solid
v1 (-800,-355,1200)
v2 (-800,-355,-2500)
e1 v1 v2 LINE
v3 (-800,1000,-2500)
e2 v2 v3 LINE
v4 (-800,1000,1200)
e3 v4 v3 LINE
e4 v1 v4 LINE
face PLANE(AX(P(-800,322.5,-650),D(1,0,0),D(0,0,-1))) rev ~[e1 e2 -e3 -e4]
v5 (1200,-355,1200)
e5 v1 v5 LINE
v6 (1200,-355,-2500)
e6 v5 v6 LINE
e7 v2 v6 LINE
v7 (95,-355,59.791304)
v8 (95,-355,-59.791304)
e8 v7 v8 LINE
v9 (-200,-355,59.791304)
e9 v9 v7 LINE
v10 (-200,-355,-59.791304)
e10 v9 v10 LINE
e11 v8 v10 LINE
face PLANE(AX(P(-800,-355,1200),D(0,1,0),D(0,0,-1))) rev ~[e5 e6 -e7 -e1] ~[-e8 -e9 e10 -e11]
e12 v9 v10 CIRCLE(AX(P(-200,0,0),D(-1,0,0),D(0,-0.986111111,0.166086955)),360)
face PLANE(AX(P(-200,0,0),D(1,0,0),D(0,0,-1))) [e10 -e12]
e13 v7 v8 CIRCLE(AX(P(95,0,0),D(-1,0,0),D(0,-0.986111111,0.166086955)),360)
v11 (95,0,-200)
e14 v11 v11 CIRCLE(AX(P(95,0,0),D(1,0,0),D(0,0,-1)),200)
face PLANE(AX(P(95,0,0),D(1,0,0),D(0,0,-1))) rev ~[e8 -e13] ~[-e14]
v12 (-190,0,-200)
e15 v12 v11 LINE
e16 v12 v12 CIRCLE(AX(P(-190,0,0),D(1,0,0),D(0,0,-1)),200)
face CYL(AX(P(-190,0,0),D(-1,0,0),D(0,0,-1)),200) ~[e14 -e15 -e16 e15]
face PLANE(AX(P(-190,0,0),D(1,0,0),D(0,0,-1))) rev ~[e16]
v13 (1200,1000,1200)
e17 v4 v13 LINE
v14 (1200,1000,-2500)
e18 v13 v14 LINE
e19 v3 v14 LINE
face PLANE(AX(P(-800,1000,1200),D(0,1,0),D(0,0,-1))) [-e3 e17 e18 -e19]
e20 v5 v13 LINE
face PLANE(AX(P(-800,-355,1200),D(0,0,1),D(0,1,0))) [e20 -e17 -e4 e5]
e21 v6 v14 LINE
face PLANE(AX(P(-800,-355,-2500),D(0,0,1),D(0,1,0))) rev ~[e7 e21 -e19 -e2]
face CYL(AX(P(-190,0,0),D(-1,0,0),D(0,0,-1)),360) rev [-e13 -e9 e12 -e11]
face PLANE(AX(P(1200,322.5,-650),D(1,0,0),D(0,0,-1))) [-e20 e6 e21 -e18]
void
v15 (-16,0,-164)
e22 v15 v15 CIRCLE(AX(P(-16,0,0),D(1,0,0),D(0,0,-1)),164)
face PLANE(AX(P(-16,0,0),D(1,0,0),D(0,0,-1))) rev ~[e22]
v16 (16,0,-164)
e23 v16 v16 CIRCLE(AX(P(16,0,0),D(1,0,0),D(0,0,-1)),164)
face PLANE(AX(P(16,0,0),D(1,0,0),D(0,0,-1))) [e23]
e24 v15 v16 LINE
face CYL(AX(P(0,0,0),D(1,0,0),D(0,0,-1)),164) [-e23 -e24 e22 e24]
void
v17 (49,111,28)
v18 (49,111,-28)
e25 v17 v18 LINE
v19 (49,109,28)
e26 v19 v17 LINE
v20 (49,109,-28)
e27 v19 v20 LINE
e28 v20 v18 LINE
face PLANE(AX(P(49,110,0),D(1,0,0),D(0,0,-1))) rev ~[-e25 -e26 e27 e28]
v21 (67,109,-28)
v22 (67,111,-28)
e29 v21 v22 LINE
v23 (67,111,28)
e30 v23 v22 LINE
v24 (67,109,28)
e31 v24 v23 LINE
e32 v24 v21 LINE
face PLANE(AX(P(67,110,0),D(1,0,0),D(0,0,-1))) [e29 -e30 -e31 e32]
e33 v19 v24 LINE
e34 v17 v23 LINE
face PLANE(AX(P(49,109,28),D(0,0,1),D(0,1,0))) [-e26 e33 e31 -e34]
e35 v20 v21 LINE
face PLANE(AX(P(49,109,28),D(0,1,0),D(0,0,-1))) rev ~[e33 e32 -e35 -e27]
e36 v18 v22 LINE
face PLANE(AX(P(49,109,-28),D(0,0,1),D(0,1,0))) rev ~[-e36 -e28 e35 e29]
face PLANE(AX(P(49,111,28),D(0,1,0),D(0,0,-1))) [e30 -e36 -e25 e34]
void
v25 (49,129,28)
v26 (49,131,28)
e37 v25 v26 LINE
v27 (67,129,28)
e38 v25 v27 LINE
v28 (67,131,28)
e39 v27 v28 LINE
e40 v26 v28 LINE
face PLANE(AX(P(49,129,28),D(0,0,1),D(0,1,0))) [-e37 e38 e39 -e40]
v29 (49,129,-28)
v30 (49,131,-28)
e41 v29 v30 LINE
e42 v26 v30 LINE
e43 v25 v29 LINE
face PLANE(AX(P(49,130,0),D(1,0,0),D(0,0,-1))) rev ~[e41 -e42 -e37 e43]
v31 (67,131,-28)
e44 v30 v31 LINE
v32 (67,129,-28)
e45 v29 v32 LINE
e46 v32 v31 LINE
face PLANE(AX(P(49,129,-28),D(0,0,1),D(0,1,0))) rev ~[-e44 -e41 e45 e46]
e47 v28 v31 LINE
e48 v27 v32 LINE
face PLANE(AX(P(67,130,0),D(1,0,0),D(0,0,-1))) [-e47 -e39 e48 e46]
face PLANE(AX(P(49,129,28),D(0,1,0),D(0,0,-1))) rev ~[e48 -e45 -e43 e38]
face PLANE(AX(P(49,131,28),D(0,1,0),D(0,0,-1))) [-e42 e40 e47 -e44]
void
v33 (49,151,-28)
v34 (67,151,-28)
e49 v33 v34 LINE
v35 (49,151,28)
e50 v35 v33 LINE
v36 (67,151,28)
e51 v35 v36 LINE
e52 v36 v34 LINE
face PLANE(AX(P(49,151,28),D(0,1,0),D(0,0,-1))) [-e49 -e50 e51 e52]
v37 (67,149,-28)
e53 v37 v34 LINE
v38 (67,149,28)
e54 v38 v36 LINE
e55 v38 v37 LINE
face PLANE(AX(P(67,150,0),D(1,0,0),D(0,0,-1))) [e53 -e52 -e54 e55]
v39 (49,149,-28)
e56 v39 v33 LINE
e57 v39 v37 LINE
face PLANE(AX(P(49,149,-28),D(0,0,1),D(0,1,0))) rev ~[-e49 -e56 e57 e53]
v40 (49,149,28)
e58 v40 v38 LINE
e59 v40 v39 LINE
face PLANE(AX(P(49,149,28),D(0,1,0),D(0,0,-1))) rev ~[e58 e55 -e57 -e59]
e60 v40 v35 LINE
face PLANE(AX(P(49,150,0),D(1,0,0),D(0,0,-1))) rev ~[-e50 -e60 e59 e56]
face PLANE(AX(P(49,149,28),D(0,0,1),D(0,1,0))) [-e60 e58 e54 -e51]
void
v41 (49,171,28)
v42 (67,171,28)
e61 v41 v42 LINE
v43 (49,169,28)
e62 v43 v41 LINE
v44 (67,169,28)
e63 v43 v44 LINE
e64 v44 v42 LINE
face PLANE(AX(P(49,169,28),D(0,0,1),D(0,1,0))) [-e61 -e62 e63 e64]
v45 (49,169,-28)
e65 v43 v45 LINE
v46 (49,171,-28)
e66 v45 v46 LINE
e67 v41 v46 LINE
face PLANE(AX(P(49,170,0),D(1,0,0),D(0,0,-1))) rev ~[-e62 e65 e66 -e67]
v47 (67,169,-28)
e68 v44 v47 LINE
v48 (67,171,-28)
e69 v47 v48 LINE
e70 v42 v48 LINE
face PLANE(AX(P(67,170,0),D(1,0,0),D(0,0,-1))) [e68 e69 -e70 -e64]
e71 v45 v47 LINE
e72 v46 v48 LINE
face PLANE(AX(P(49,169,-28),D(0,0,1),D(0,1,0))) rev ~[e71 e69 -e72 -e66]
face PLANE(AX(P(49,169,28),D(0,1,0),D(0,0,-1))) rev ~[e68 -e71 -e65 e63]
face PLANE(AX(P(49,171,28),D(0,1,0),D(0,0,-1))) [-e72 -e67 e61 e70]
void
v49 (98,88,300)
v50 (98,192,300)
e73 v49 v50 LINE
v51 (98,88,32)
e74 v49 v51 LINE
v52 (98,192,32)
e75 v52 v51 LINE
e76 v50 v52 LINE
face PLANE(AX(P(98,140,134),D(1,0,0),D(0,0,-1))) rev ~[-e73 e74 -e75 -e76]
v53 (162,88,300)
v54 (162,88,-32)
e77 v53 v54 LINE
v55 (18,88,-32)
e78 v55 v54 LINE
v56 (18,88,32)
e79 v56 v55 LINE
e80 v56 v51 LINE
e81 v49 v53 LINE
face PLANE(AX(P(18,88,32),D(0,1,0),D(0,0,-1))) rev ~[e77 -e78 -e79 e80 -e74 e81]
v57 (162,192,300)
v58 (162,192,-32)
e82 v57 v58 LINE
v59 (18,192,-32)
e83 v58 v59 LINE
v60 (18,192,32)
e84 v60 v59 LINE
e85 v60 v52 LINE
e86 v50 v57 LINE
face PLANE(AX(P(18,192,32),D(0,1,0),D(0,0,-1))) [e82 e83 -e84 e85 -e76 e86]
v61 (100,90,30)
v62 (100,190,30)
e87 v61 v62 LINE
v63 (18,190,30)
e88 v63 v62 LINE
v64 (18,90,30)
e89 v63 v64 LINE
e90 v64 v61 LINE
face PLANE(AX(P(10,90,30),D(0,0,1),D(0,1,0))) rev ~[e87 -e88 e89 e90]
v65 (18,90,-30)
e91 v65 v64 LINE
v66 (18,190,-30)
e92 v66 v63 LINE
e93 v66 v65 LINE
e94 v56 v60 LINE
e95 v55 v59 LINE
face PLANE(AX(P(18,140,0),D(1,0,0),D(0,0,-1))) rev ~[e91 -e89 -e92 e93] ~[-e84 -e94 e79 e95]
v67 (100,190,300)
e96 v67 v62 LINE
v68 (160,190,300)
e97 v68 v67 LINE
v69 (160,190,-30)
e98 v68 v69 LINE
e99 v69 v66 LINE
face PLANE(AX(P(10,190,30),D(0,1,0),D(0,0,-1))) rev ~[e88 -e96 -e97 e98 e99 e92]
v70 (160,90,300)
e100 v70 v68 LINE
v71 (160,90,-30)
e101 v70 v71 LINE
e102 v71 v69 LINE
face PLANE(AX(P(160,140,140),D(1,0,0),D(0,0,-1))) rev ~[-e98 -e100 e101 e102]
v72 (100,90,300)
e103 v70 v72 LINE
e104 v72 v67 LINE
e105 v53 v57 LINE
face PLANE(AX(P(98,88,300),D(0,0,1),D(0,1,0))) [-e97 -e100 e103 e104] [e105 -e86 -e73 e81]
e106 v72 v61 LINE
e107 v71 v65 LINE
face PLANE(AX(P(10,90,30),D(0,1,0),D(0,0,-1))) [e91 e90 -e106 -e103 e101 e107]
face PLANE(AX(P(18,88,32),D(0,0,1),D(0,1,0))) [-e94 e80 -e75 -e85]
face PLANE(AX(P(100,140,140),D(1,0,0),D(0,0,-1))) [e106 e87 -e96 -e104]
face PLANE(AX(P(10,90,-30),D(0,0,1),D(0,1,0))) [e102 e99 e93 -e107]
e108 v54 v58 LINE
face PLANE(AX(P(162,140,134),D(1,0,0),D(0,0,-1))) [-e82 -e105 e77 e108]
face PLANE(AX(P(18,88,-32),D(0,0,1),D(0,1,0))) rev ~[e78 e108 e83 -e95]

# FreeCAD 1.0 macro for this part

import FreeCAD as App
import Part
import Sketcher
from FreeCAD import Vector


def add_polygon(sketch, points):
    """Adds a closed chain of lines whose ends are joined by coincident constraints."""
    first, n = sketch.GeometryCount, len(points)
    for a, b in zip(points, points[1:] + points[:1]):
        sketch.addGeometry(Part.LineSegment(App.Vector(*a, 0), App.Vector(*b, 0)), False)
    for i in range(n):
        sketch.addConstraint(Sketcher.Constraint("Coincident", first + i, 2, first + (i + 1) % n, 1))

doc = App.newDocument("Part")
body = doc.addObject("PartDesign::Body", "Body")

# Sketch on YZ plane
sketch1 = doc.addObject("Sketcher::SketchObject", "Sketch")
body.addObject(sketch1)
sketch1.AttachmentSupport = (doc.YZ_Plane, [""])
sketch1.MapMode = "FlatFace"
sketch1.AttachmentOffset = App.Placement(Vector(0, 0, -800), App.Rotation())
add_polygon(sketch1, [(1000, 1200), (-355, 1200), (-355, -2500), (1000, -2500)])  # lines 0-3
sketch1.addConstraint([
    Sketcher.Constraint("Horizontal", 0),
    Sketcher.Constraint("Vertical", 1),
    Sketcher.Constraint("Horizontal", 2),
    Sketcher.Constraint("Vertical", 3),
    Sketcher.Constraint("DistanceX", 0, 2, 0, 1, 1355.0),
    Sketcher.Constraint("DistanceY", 1, 2, 1, 1, 3700.0),
    Sketcher.Constraint("DistanceX", 0, 2, -1, 1, 355.0),
    Sketcher.Constraint("DistanceY", -1, 1, 0, 2, 1200.0),
])
pad1 = doc.addObject("PartDesign::Pad", "Pad")
body.addObject(pad1)
pad1.Profile = sketch1
pad1.Length = 2000
body2 = doc.addObject("PartDesign::Body", "Body001")

# Sketch on YZ plane
sketch2 = doc.addObject("Sketcher::SketchObject", "Sketch001")
body2.addObject(sketch2)
sketch2.AttachmentSupport = (doc.getObject("YZ_Plane001"), [""])
sketch2.MapMode = "FlatFace"
sketch2.AttachmentOffset = App.Placement(Vector(0, 0, -190), App.Rotation())
sketch2.addGeometry([
    Part.Circle(Vector(0, 0, 0), Vector(0, 0, 1), 360),
    Part.Circle(Vector(0, 0, 0), Vector(0, 0, 1), 200),
], False)
sketch2.addConstraint([
    Sketcher.Constraint("Coincident", 0, 3, -1, 1),
    Sketcher.Constraint("Coincident", 1, 3, -1, 1),
    Sketcher.Constraint("Diameter", 0, 720.0),
    Sketcher.Constraint("Diameter", 1, 400.0),
])
pad2 = doc.addObject("PartDesign::Pad", "Pad001")
body2.addObject(pad2)
pad2.Profile = sketch2
pad2.Length = 285
body3 = doc.addObject("PartDesign::Body", "Body002")

# Sketch on YZ plane
sketch3 = doc.addObject("Sketcher::SketchObject", "Sketch002")
body3.addObject(sketch3)
sketch3.AttachmentSupport = (doc.getObject("YZ_Plane002"), [""])
sketch3.MapMode = "FlatFace"
sketch3.AttachmentOffset = App.Placement(Vector(0, 0, -200), App.Rotation())
sketch3.addGeometry(Part.Circle(Vector(0, 0, 0), Vector(0, 0, 1), 360), False)
sketch3.addConstraint([
    Sketcher.Constraint("Coincident", 0, 3, -1, 1),
    Sketcher.Constraint("Diameter", 0, 720.0),
])
pad3 = doc.addObject("PartDesign::Pad", "Pad002")
body3.addObject(pad3)
pad3.Profile = sketch3
pad3.Length = 10
body4 = doc.addObject("PartDesign::Body", "Body003")

# Sketch on YZ plane
sketch4 = doc.addObject("Sketcher::SketchObject", "Sketch003")
body4.addObject(sketch4)
sketch4.AttachmentSupport = (doc.getObject("YZ_Plane003"), [""])
sketch4.MapMode = "FlatFace"
sketch4.addGeometry(Part.Circle(Vector(0, 0, 0), Vector(0, 0, 1), 164), False)
sketch4.addConstraint([
    Sketcher.Constraint("Coincident", 0, 3, -1, 1),
    Sketcher.Constraint("Diameter", 0, 328.0),
])
pad4 = doc.addObject("PartDesign::Pad", "Pad003")
body4.addObject(pad4)
pad4.Profile = sketch4
pad4.Length = 32
pad4.Midplane = True
body5 = doc.addObject("PartDesign::Body", "Body004")

# Sketch on YZ plane
sketch5 = doc.addObject("Sketcher::SketchObject", "Sketch004")
body5.addObject(sketch5)
sketch5.AttachmentSupport = (doc.getObject("YZ_Plane004"), [""])
sketch5.MapMode = "FlatFace"
sketch5.AttachmentOffset = App.Placement(Vector(0, 0, 18), App.Rotation())
add_polygon(sketch5, [(192, 32), (88, 32), (88, -32), (192, -32)])  # lines 0-3
sketch5.addConstraint([
    Sketcher.Constraint("Horizontal", 0),
    Sketcher.Constraint("Vertical", 1),
    Sketcher.Constraint("Horizontal", 2),
    Sketcher.Constraint("Vertical", 3),
    Sketcher.Constraint("DistanceX", 0, 2, 0, 1, 104.0),
    Sketcher.Constraint("DistanceY", 1, 2, 1, 1, 64.0),
    Sketcher.Constraint("DistanceX", -1, 1, 0, 2, 88.0),
    Sketcher.Constraint("DistanceY", -1, 1, 0, 2, 32.0),
])
pad5 = doc.addObject("PartDesign::Pad", "Pad004")
body5.addObject(pad5)
pad5.Profile = sketch5
pad5.Length = 82
body6 = doc.addObject("PartDesign::Body", "Body005")

# Sketch on YZ plane
sketch6 = doc.addObject("Sketcher::SketchObject", "Sketch005")
body6.addObject(sketch6)
sketch6.AttachmentSupport = (doc.getObject("YZ_Plane005"), [""])
sketch6.MapMode = "FlatFace"
sketch6.AttachmentOffset = App.Placement(Vector(0, 0, 98), App.Rotation())
add_polygon(sketch6, [(192, 300), (88, 300), (88, -32), (192, -32)])  # lines 0-3
sketch6.addConstraint([
    Sketcher.Constraint("Horizontal", 0),
    Sketcher.Constraint("Vertical", 1),
    Sketcher.Constraint("Horizontal", 2),
    Sketcher.Constraint("Vertical", 3),
    Sketcher.Constraint("DistanceX", 0, 2, 0, 1, 104.0),
    Sketcher.Constraint("DistanceY", 1, 2, 1, 1, 332.0),
    Sketcher.Constraint("DistanceX", -1, 1, 0, 2, 88.0),
    Sketcher.Constraint("DistanceY", -1, 1, 0, 2, 300.0),
])
pad6 = doc.addObject("PartDesign::Pad", "Pad005")
body6.addObject(pad6)
pad6.Profile = sketch6
pad6.Length = 64
doc.recompute()

boolean = doc.addObject("PartDesign::Boolean", "Boolean")
body6.addObject(boolean)
boolean.Type = "Fuse"
boolean.addObjects([body5])
body7 = doc.addObject("PartDesign::Body", "Body006")

# Sketch on YZ plane
sketch7 = doc.addObject("Sketcher::SketchObject", "Sketch006")
body7.addObject(sketch7)
sketch7.AttachmentSupport = (doc.getObject("YZ_Plane006"), [""])
sketch7.MapMode = "FlatFace"
sketch7.AttachmentOffset = App.Placement(Vector(0, 0, 10), App.Rotation())
add_polygon(sketch7, [(190, 30), (90, 30), (90, -30), (190, -30)])  # lines 0-3
sketch7.addConstraint([
    Sketcher.Constraint("Horizontal", 0),
    Sketcher.Constraint("Vertical", 1),
    Sketcher.Constraint("Horizontal", 2),
    Sketcher.Constraint("Vertical", 3),
    Sketcher.Constraint("DistanceX", 0, 2, 0, 1, 100.0),
    Sketcher.Constraint("DistanceY", 1, 2, 1, 1, 60.0),
    Sketcher.Constraint("DistanceX", -1, 1, 0, 2, 90.0),
    Sketcher.Constraint("DistanceY", -1, 1, 0, 2, 30.0),
])
pad7 = doc.addObject("PartDesign::Pad", "Pad006")
body7.addObject(pad7)
pad7.Profile = sketch7
pad7.Length = 91
body8 = doc.addObject("PartDesign::Body", "Body007")

# Sketch on YZ plane
sketch8 = doc.addObject("Sketcher::SketchObject", "Sketch007")
body8.addObject(sketch8)
sketch8.AttachmentSupport = (doc.getObject("YZ_Plane007"), [""])
sketch8.MapMode = "FlatFace"
sketch8.AttachmentOffset = App.Placement(Vector(0, 0, 100), App.Rotation())
add_polygon(sketch8, [(190, 310), (90, 310), (90, -30), (190, -30)])  # lines 0-3
sketch8.addConstraint([
    Sketcher.Constraint("Horizontal", 0),
    Sketcher.Constraint("Vertical", 1),
    Sketcher.Constraint("Horizontal", 2),
    Sketcher.Constraint("Vertical", 3),
    Sketcher.Constraint("DistanceX", 0, 2, 0, 1, 100.0),
    Sketcher.Constraint("DistanceY", 1, 2, 1, 1, 340.0),
    Sketcher.Constraint("DistanceX", -1, 1, 0, 2, 90.0),
    Sketcher.Constraint("DistanceY", -1, 1, 0, 2, 310.0),
])
pad8 = doc.addObject("PartDesign::Pad", "Pad007")
body8.addObject(pad8)
pad8.Profile = sketch8
pad8.Length = 60
doc.recompute()

boolean2 = doc.addObject("PartDesign::Boolean", "Boolean001")
body6.addObject(boolean2)
boolean2.Type = "Cut"
boolean2.addObjects([body7])
doc.recompute()

boolean3 = doc.addObject("PartDesign::Boolean", "Boolean002")
body6.addObject(boolean3)
boolean3.Type = "Cut"
boolean3.addObjects([body8])
body9 = doc.addObject("PartDesign::Body", "Body008")

# Sketch on YZ plane
sketch9 = doc.addObject("Sketcher::SketchObject", "Sketch008")
body9.addObject(sketch9)
sketch9.AttachmentSupport = (doc.getObject("YZ_Plane008"), [""])
sketch9.MapMode = "FlatFace"
sketch9.AttachmentOffset = App.Placement(Vector(0, 0, 49), App.Rotation())
add_polygon(sketch9, [(111, 28), (109, 28), (109, -28), (111, -28)])  # lines 0-3
sketch9.addConstraint([
    Sketcher.Constraint("Horizontal", 0),
    Sketcher.Constraint("Vertical", 1),
    Sketcher.Constraint("Horizontal", 2),
    Sketcher.Constraint("Vertical", 3),
    Sketcher.Constraint("DistanceX", 0, 2, 0, 1, 2.0),
    Sketcher.Constraint("DistanceY", 1, 2, 1, 1, 56.0),
    Sketcher.Constraint("DistanceX", -1, 1, 0, 2, 109.0),
    Sketcher.Constraint("DistanceY", -1, 1, 0, 2, 28.0),
])
pad9 = doc.addObject("PartDesign::Pad", "Pad008")
body9.addObject(pad9)
pad9.Profile = sketch9
pad9.Length = 18
body10 = doc.addObject("PartDesign::Body", "Body009")

# Sketch on YZ plane
sketch10 = doc.addObject("Sketcher::SketchObject", "Sketch009")
body10.addObject(sketch10)
sketch10.AttachmentSupport = (doc.getObject("YZ_Plane009"), [""])
sketch10.MapMode = "FlatFace"
sketch10.AttachmentOffset = App.Placement(Vector(0, 0, 49), App.Rotation())
add_polygon(sketch10, [(131, 28), (129, 28), (129, -28), (131, -28)])  # lines 0-3
sketch10.addConstraint([
    Sketcher.Constraint("Horizontal", 0),
    Sketcher.Constraint("Vertical", 1),
    Sketcher.Constraint("Horizontal", 2),
    Sketcher.Constraint("Vertical", 3),
    Sketcher.Constraint("DistanceX", 0, 2, 0, 1, 2.0),
    Sketcher.Constraint("DistanceY", 1, 2, 1, 1, 56.0),
    Sketcher.Constraint("DistanceX", -1, 1, 0, 2, 129.0),
    Sketcher.Constraint("DistanceY", -1, 1, 0, 2, 28.0),
])
pad10 = doc.addObject("PartDesign::Pad", "Pad009")
body10.addObject(pad10)
pad10.Profile = sketch10
pad10.Length = 18
body11 = doc.addObject("PartDesign::Body", "Body010")

# Sketch on YZ plane
sketch11 = doc.addObject("Sketcher::SketchObject", "Sketch010")
body11.addObject(sketch11)
sketch11.AttachmentSupport = (doc.getObject("YZ_Plane010"), [""])
sketch11.MapMode = "FlatFace"
sketch11.AttachmentOffset = App.Placement(Vector(0, 0, 49), App.Rotation())
add_polygon(sketch11, [(151, 28), (149, 28), (149, -28), (151, -28)])  # lines 0-3
sketch11.addConstraint([
    Sketcher.Constraint("Horizontal", 0),
    Sketcher.Constraint("Vertical", 1),
    Sketcher.Constraint("Horizontal", 2),
    Sketcher.Constraint("Vertical", 3),
    Sketcher.Constraint("DistanceX", 0, 2, 0, 1, 2.0),
    Sketcher.Constraint("DistanceY", 1, 2, 1, 1, 56.0),
    Sketcher.Constraint("DistanceX", -1, 1, 0, 2, 149.0),
    Sketcher.Constraint("DistanceY", -1, 1, 0, 2, 28.0),
])
pad11 = doc.addObject("PartDesign::Pad", "Pad010")
body11.addObject(pad11)
pad11.Profile = sketch11
pad11.Length = 18
body12 = doc.addObject("PartDesign::Body", "Body011")

# Sketch on YZ plane
sketch12 = doc.addObject("Sketcher::SketchObject", "Sketch011")
body12.addObject(sketch12)
sketch12.AttachmentSupport = (doc.getObject("YZ_Plane011"), [""])
sketch12.MapMode = "FlatFace"
sketch12.AttachmentOffset = App.Placement(Vector(0, 0, 49), App.Rotation())
add_polygon(sketch12, [(171, 28), (169, 28), (169, -28), (171, -28)])  # lines 0-3
sketch12.addConstraint([
    Sketcher.Constraint("Horizontal", 0),
    Sketcher.Constraint("Vertical", 1),
    Sketcher.Constraint("Horizontal", 2),
    Sketcher.Constraint("Vertical", 3),
    Sketcher.Constraint("DistanceX", 0, 2, 0, 1, 2.0),
    Sketcher.Constraint("DistanceY", 1, 2, 1, 1, 56.0),
    Sketcher.Constraint("DistanceX", -1, 1, 0, 2, 169.0),
    Sketcher.Constraint("DistanceY", -1, 1, 0, 2, 28.0),
])
pad12 = doc.addObject("PartDesign::Pad", "Pad011")
body12.addObject(pad12)
pad12.Profile = sketch12
pad12.Length = 18
doc.recompute()

boolean4 = doc.addObject("PartDesign::Boolean", "Boolean003")
body.addObject(boolean4)
boolean4.Type = "Cut"
boolean4.addObjects([body2])
doc.recompute()

boolean5 = doc.addObject("PartDesign::Boolean", "Boolean004")
body.addObject(boolean5)
boolean5.Type = "Cut"
boolean5.addObjects([body3])
doc.recompute()

boolean6 = doc.addObject("PartDesign::Boolean", "Boolean005")
body.addObject(boolean6)
boolean6.Type = "Cut"
boolean6.addObjects([body4])
doc.recompute()

boolean7 = doc.addObject("PartDesign::Boolean", "Boolean006")
body.addObject(boolean7)
boolean7.Type = "Cut"
boolean7.addObjects([body6])
doc.recompute()

boolean8 = doc.addObject("PartDesign::Boolean", "Boolean007")
body.addObject(boolean8)
boolean8.Type = "Cut"
boolean8.addObjects([body9])
doc.recompute()

boolean9 = doc.addObject("PartDesign::Boolean", "Boolean008")
body.addObject(boolean9)
boolean9.Type = "Cut"
boolean9.addObjects([body10])
doc.recompute()

boolean10 = doc.addObject("PartDesign::Boolean", "Boolean009")
body.addObject(boolean10)
boolean10.Type = "Cut"
boolean10.addObjects([body11])
doc.recompute()

boolean11 = doc.addObject("PartDesign::Boolean", "Boolean010")
body.addObject(boolean11)
boolean11.Type = "Cut"
boolean11.addObjects([body12])

doc.recompute()
